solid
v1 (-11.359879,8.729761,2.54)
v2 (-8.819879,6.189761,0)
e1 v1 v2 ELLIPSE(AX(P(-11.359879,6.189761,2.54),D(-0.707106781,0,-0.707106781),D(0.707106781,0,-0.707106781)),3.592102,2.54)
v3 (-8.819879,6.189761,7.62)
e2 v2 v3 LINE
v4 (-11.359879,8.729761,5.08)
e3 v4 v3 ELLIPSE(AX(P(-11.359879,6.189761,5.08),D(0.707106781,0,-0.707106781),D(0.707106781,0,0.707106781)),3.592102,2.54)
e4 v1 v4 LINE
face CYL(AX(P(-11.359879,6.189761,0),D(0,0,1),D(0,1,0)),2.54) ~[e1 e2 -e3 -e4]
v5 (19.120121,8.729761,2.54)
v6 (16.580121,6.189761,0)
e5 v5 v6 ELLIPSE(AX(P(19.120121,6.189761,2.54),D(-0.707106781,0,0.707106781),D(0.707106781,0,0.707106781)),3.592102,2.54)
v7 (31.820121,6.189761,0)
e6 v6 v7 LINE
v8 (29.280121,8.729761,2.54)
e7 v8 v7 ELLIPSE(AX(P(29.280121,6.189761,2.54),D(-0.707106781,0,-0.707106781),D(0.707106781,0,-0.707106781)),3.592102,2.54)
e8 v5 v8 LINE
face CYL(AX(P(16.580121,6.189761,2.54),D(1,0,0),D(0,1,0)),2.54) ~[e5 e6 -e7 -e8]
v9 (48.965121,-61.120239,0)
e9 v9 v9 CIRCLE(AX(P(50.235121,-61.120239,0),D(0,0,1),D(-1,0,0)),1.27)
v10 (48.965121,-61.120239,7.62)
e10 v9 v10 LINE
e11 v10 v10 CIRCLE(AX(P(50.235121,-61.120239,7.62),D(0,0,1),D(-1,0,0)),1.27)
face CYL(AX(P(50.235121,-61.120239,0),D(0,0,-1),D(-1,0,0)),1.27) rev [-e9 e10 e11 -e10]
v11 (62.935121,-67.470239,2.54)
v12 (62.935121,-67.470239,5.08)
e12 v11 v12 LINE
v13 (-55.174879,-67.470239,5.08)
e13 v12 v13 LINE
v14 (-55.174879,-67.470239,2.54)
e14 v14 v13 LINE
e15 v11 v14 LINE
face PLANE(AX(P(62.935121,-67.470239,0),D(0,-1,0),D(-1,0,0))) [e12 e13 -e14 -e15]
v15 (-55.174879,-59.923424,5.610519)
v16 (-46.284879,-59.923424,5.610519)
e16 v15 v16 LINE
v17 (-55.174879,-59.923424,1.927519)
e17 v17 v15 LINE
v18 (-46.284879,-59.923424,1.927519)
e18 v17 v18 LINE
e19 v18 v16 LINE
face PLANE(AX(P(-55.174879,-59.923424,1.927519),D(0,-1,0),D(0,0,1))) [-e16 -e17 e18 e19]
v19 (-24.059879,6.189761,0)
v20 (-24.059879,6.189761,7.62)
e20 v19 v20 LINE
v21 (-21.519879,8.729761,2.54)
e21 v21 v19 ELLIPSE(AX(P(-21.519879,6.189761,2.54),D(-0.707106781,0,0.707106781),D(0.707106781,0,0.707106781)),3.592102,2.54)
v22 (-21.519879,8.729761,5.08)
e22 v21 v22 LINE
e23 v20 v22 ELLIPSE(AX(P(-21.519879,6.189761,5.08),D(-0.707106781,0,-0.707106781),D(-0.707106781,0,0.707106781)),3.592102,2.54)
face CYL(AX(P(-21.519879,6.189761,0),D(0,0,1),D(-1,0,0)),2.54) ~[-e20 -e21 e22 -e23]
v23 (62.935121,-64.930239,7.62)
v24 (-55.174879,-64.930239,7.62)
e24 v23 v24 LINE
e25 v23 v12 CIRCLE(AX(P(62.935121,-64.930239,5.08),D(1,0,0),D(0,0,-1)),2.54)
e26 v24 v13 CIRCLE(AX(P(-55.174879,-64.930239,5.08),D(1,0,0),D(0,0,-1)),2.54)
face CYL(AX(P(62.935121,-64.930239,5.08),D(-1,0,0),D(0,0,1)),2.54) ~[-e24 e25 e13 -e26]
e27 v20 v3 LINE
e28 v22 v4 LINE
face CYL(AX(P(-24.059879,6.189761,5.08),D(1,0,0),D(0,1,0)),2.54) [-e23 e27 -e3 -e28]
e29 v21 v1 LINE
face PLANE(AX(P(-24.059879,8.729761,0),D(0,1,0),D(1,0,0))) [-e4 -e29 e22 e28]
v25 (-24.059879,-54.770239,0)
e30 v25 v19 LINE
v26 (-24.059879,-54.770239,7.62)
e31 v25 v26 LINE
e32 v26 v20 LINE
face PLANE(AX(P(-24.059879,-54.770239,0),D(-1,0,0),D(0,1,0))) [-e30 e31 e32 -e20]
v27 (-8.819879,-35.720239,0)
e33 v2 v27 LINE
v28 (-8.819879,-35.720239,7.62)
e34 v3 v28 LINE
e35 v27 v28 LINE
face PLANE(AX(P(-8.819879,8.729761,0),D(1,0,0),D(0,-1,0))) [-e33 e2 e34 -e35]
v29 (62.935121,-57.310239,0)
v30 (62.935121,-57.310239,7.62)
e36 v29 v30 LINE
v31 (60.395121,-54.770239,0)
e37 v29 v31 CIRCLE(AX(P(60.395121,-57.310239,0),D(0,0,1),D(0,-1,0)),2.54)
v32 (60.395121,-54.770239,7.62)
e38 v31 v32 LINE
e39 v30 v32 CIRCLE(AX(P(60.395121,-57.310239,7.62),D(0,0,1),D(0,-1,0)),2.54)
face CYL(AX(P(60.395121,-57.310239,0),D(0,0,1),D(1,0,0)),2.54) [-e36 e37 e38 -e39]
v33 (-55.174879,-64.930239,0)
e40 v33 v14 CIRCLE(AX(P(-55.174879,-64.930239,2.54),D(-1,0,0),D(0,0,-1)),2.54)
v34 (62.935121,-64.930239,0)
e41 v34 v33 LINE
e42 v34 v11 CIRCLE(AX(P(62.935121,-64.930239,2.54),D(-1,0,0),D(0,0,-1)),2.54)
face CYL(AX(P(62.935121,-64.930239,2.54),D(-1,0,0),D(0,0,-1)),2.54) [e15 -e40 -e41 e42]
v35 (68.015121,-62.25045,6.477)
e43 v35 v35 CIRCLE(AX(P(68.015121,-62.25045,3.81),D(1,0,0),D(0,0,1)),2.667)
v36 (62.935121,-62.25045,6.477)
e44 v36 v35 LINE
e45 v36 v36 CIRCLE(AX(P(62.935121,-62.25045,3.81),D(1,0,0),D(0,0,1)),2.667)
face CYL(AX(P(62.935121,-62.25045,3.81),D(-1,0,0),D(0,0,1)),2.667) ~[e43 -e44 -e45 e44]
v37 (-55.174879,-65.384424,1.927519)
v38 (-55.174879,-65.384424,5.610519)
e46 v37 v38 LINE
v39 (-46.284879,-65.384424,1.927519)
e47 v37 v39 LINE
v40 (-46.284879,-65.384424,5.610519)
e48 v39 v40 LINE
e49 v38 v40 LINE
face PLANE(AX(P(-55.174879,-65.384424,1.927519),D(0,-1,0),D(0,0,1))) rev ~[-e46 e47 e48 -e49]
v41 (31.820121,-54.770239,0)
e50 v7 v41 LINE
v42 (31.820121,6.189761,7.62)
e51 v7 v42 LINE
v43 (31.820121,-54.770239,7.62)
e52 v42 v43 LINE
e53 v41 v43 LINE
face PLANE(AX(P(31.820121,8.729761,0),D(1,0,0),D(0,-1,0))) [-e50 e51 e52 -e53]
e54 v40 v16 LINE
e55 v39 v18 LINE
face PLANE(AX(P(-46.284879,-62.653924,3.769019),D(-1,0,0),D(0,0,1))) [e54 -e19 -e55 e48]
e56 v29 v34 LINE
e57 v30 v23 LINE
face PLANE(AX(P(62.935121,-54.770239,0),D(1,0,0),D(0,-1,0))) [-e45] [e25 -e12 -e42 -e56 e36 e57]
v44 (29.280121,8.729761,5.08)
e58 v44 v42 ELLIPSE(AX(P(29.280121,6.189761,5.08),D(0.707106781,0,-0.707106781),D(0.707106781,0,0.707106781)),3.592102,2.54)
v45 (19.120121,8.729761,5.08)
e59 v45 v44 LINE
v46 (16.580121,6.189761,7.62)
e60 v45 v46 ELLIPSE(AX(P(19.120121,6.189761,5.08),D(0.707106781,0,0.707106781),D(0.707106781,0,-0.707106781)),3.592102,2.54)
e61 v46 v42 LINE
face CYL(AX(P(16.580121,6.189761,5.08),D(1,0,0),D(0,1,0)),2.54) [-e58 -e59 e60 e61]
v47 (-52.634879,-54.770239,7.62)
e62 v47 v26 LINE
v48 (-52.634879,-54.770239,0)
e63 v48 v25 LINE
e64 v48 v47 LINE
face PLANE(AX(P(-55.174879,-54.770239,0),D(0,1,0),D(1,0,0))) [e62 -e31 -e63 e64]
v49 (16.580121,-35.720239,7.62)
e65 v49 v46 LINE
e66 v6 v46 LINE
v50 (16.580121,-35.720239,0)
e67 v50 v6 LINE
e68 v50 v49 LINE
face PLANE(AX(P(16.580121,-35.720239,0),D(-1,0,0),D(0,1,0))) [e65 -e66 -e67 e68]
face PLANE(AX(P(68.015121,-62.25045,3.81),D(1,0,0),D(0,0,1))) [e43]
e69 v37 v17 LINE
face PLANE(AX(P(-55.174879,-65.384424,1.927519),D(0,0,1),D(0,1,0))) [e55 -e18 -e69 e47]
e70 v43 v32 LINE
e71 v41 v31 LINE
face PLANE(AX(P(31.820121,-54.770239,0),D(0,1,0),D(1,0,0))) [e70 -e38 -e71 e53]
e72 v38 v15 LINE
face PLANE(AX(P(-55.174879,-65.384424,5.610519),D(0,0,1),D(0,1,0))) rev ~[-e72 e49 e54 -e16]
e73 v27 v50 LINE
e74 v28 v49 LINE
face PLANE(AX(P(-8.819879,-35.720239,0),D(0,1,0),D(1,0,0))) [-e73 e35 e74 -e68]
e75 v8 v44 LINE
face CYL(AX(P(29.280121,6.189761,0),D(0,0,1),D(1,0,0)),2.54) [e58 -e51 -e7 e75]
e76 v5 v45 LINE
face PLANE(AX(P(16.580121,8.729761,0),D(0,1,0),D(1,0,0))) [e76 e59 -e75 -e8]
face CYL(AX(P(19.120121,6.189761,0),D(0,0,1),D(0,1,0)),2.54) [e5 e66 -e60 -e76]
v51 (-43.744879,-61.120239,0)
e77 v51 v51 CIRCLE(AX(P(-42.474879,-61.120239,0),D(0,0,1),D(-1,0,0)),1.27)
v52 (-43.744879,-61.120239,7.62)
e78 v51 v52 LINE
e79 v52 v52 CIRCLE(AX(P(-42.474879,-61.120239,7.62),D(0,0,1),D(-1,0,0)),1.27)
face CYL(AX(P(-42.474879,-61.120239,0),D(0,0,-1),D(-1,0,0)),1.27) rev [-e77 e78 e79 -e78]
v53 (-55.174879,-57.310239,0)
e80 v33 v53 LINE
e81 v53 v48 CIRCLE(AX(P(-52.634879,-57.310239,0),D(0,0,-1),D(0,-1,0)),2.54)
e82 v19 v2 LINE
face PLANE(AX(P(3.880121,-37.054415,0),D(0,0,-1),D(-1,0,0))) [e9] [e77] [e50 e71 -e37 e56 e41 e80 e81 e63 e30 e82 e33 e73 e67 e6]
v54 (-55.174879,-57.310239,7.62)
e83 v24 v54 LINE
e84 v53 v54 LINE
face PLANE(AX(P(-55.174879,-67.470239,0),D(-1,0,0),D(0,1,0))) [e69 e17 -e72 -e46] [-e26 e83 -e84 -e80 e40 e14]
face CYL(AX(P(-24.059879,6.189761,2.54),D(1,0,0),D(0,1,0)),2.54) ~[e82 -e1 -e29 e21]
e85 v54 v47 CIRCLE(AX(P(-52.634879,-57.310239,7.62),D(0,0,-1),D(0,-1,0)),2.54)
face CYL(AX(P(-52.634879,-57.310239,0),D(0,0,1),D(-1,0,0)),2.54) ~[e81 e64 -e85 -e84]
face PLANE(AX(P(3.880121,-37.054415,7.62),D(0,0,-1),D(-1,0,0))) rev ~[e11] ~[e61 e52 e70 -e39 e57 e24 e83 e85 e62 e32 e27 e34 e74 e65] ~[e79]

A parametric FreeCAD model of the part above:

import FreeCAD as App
import Part
import Sketcher
Q = App.Units.Quantity


def edges_at(feature, points):
    """Names of the edges that pass closest to the given points."""
    edges = feature.Shape.Edges
    near = lambda p: min(range(len(edges)), key=lambda i: edges[i].distToShape(Part.Vertex(*p))[0])
    return sorted({f"Edge{near(p) + 1}" for p in points})


def add_polygon(sketch, points):
    """Adds a closed chain of lines whose ends are joined by coincident constraints."""
    first, n = sketch.GeometryCount, len(points)
    for a, b in zip(points, points[1:] + points[:1]):
        sketch.addGeometry(Part.LineSegment(App.Vector(*a, 0), App.Vector(*b, 0)), False)
    for i in range(n):
        sketch.addConstraint(Sketcher.Constraint("Coincident", first + i, 2, first + (i + 1) % n, 1))

doc = App.newDocument("Part")
body = doc.addObject("PartDesign::Body", "Body")

# Sketch on XY plane
sketch1 = body.newObject("Sketcher::SketchObject", "Sketch")
sketch1.AttachmentSupport = (doc.getObject("XY_Plane"), [""])
sketch1.MapMode = "FlatFace"
add_polygon(sketch1, [(-55.174879, -54.770239), (-55.174879, -67.470239), (62.935121, -67.470239), (62.935121, -54.770239), (31.820121, -54.770239), (31.820121, 8.729761), (16.580121, 8.729761), (16.580121, -35.720239), (-8.819879, -35.720239), (-8.819879, 8.729761), (-24.059879, 8.729761), (-24.059879, -54.770239)])  # lines 0-11
sketch1.addGeometry(Part.Circle(App.Vector(50.235121, -61.120239, 0), App.Vector(0, 0, 1), 1.27), False)  # 12
sketch1.addGeometry(Part.Circle(App.Vector(-42.474879, -61.120239, 0), App.Vector(0, 0, 1), 1.27), False)  # 13
sketch1.addConstraint(Sketcher.Constraint("Vertical", 0))
sketch1.addConstraint(Sketcher.Constraint("Horizontal", 1))
sketch1.addConstraint(Sketcher.Constraint("Vertical", 2))
sketch1.addConstraint(Sketcher.Constraint("Horizontal", 3))
sketch1.addConstraint(Sketcher.Constraint("Vertical", 4))
sketch1.addConstraint(Sketcher.Constraint("Horizontal", 5))
sketch1.addConstraint(Sketcher.Constraint("Vertical", 6))
sketch1.addConstraint(Sketcher.Constraint("Horizontal", 7))
sketch1.addConstraint(Sketcher.Constraint("Vertical", 8))
sketch1.addConstraint(Sketcher.Constraint("Horizontal", 9))
sketch1.addConstraint(Sketcher.Constraint("Vertical", 10))
sketch1.addConstraint(Sketcher.Constraint("Horizontal", 11))
sketch1.addConstraint(Sketcher.Constraint("Equal", 12, 13))
sketch1.addConstraint(Sketcher.Constraint("Horizontal", 12, 3, 13, 3))
sketch1.addConstraint(Sketcher.Constraint("Horizontal", 5, 2, 8, 2))
sketch1.addConstraint(Sketcher.Constraint("Horizontal", 3, 2, 10, 2))
sketch1.addConstraint(Sketcher.Constraint("Equal", 5, 9))
sketch1.addConstraint(Sketcher.Constraint("Equal", 3, 11))
sketch1.addConstraint(Sketcher.Constraint("Diameter", 12, Q("0.1 in")))
sketch1.addConstraint(Sketcher.Constraint("DistanceX", 7, 2, 7, 1, Q("1 in")))
sketch1.addConstraint(Sketcher.Constraint("DistanceX", 5, 2, 5, 1, Q("0.6 in")))
sketch1.addConstraint(Sketcher.Constraint("DistanceY", 0, 2, 0, 1, Q("0.5 in")))
sketch1.addConstraint(Sketcher.Constraint("DistanceY", 4, 1, 4, 2, Q("2.5 in")))
sketch1.addConstraint(Sketcher.Constraint("DistanceY", 12, 3, 6, 2, Q("1 in")))
sketch1.addConstraint(Sketcher.Constraint("DistanceX", 1, 1, 1, 2, Q("4.65 in")))
sketch1.addConstraint(Sketcher.Constraint("DistanceY", 6, 2, 6, 1, Q("1.75 in")))
sketch1.addConstraint(Sketcher.Constraint("DistanceX", 0, 2, 13, 3, Q("0.5 in")))
sketch1.addConstraint(Sketcher.Constraint("DistanceX", 12, 3, 1, 2, Q("0.5 in")))
sketch1.addConstraint(Sketcher.Constraint("DistanceX", -1, 1, 12, 3, 50.235121))
sketch1.addConstraint(Sketcher.Constraint("DistanceY", 12, 3, -1, 1, 61.120239))
pad1 = body.newObject("PartDesign::Pad", "Pad")
pad1.Profile = sketch1
pad1.Length = Q("0.3 in")
doc.recompute()

fillet = body.newObject("PartDesign::Fillet", "Fillet")
fillet.Base = (pad1, edges_at(pad1, [
    (-16.44, 8.73, 0),
    (24.2, 8.73, 0),
    (24.2, 8.73, 7.62),
    (-24.06, 8.73, 3.81),
    (-8.82, 8.73, 3.81),
    (16.58, 8.73, 3.81),
    (31.82, 8.73, 3.81),
    (-16.44, 8.73, 7.62),
]))
fillet.Radius = Q("0.1 in")
doc.recompute()

fillet2 = body.newObject("PartDesign::Fillet", "Fillet001")
fillet2.Base = (fillet, edges_at(fillet, [(3.88, -67.47, 0), (3.88, -67.47, 7.62)]))
fillet2.Radius = Q("0.1 in")
doc.recompute()

fillet3 = body.newObject("PartDesign::Fillet", "Fillet002")
fillet3.Base = (fillet2, edges_at(fillet2, [(-55.175, -54.77, 3.81), (62.935, -54.77, 3.81)]))
fillet3.Radius = Q("0.1 in")

# Sketch on YZ plane
sketch2 = body.newObject("Sketcher::SketchObject", "Sketch001")
sketch2.AttachmentSupport = (doc.getObject("YZ_Plane"), [""])
sketch2.MapMode = "FlatFace"
sketch2.AttachmentOffset = App.Placement(App.Vector(0, 0, 62.935121), App.Rotation())
sketch2.addGeometry(Part.Circle(App.Vector(-62.25045, 3.81, 0), App.Vector(0, 0, 1), 2.667), False)
sketch2.addConstraint(Sketcher.Constraint("Diameter", 0, Q("0.21 in")))
sketch2.addConstraint(Sketcher.Constraint("DistanceY", -1, 1, 0, 3, Q("0.15 in")))
sketch2.addConstraint(Sketcher.Constraint("DistanceX", 0, 3, -1, 1, 62.25045))
pad2 = body.newObject("PartDesign::Pad", "Pad001")
pad2.Profile = sketch2
pad2.Length = Q("0.2 in")

# Sketch on YZ plane
sketch3 = body.newObject("Sketcher::SketchObject", "Sketch002")
sketch3.AttachmentSupport = (doc.getObject("YZ_Plane"), [""])
sketch3.MapMode = "FlatFace"
sketch3.AttachmentOffset = App.Placement(App.Vector(0, 0, -55.174879), App.Rotation())
add_polygon(sketch3, [(-59.923424, 1.927519), (-65.384424, 1.927519), (-65.384424, 5.610519), (-59.923424, 5.610519)])  # lines 0-3
sketch3.addConstraint(Sketcher.Constraint("Horizontal", 0))
sketch3.addConstraint(Sketcher.Constraint("Vertical", 1))
sketch3.addConstraint(Sketcher.Constraint("Horizontal", 2))
sketch3.addConstraint(Sketcher.Constraint("Vertical", 3))
sketch3.addConstraint(Sketcher.Constraint("DistanceX", 0, 2, 0, 1, Q("0.215 in")))
sketch3.addConstraint(Sketcher.Constraint("DistanceY", 1, 1, 1, 2, Q("0.145 in")))
sketch3.addConstraint(Sketcher.Constraint("DistanceY", -1, 1, 0, 2, 1.927519))
sketch3.addConstraint(Sketcher.Constraint("DistanceX", 0, 2, -1, 1, 65.384424))
pocket1 = body.newObject("PartDesign::Pocket", "Pocket")
pocket1.Profile = sketch3
pocket1.Length = Q("0.35 in")
pocket1.Reversed = True

doc.recompute()
